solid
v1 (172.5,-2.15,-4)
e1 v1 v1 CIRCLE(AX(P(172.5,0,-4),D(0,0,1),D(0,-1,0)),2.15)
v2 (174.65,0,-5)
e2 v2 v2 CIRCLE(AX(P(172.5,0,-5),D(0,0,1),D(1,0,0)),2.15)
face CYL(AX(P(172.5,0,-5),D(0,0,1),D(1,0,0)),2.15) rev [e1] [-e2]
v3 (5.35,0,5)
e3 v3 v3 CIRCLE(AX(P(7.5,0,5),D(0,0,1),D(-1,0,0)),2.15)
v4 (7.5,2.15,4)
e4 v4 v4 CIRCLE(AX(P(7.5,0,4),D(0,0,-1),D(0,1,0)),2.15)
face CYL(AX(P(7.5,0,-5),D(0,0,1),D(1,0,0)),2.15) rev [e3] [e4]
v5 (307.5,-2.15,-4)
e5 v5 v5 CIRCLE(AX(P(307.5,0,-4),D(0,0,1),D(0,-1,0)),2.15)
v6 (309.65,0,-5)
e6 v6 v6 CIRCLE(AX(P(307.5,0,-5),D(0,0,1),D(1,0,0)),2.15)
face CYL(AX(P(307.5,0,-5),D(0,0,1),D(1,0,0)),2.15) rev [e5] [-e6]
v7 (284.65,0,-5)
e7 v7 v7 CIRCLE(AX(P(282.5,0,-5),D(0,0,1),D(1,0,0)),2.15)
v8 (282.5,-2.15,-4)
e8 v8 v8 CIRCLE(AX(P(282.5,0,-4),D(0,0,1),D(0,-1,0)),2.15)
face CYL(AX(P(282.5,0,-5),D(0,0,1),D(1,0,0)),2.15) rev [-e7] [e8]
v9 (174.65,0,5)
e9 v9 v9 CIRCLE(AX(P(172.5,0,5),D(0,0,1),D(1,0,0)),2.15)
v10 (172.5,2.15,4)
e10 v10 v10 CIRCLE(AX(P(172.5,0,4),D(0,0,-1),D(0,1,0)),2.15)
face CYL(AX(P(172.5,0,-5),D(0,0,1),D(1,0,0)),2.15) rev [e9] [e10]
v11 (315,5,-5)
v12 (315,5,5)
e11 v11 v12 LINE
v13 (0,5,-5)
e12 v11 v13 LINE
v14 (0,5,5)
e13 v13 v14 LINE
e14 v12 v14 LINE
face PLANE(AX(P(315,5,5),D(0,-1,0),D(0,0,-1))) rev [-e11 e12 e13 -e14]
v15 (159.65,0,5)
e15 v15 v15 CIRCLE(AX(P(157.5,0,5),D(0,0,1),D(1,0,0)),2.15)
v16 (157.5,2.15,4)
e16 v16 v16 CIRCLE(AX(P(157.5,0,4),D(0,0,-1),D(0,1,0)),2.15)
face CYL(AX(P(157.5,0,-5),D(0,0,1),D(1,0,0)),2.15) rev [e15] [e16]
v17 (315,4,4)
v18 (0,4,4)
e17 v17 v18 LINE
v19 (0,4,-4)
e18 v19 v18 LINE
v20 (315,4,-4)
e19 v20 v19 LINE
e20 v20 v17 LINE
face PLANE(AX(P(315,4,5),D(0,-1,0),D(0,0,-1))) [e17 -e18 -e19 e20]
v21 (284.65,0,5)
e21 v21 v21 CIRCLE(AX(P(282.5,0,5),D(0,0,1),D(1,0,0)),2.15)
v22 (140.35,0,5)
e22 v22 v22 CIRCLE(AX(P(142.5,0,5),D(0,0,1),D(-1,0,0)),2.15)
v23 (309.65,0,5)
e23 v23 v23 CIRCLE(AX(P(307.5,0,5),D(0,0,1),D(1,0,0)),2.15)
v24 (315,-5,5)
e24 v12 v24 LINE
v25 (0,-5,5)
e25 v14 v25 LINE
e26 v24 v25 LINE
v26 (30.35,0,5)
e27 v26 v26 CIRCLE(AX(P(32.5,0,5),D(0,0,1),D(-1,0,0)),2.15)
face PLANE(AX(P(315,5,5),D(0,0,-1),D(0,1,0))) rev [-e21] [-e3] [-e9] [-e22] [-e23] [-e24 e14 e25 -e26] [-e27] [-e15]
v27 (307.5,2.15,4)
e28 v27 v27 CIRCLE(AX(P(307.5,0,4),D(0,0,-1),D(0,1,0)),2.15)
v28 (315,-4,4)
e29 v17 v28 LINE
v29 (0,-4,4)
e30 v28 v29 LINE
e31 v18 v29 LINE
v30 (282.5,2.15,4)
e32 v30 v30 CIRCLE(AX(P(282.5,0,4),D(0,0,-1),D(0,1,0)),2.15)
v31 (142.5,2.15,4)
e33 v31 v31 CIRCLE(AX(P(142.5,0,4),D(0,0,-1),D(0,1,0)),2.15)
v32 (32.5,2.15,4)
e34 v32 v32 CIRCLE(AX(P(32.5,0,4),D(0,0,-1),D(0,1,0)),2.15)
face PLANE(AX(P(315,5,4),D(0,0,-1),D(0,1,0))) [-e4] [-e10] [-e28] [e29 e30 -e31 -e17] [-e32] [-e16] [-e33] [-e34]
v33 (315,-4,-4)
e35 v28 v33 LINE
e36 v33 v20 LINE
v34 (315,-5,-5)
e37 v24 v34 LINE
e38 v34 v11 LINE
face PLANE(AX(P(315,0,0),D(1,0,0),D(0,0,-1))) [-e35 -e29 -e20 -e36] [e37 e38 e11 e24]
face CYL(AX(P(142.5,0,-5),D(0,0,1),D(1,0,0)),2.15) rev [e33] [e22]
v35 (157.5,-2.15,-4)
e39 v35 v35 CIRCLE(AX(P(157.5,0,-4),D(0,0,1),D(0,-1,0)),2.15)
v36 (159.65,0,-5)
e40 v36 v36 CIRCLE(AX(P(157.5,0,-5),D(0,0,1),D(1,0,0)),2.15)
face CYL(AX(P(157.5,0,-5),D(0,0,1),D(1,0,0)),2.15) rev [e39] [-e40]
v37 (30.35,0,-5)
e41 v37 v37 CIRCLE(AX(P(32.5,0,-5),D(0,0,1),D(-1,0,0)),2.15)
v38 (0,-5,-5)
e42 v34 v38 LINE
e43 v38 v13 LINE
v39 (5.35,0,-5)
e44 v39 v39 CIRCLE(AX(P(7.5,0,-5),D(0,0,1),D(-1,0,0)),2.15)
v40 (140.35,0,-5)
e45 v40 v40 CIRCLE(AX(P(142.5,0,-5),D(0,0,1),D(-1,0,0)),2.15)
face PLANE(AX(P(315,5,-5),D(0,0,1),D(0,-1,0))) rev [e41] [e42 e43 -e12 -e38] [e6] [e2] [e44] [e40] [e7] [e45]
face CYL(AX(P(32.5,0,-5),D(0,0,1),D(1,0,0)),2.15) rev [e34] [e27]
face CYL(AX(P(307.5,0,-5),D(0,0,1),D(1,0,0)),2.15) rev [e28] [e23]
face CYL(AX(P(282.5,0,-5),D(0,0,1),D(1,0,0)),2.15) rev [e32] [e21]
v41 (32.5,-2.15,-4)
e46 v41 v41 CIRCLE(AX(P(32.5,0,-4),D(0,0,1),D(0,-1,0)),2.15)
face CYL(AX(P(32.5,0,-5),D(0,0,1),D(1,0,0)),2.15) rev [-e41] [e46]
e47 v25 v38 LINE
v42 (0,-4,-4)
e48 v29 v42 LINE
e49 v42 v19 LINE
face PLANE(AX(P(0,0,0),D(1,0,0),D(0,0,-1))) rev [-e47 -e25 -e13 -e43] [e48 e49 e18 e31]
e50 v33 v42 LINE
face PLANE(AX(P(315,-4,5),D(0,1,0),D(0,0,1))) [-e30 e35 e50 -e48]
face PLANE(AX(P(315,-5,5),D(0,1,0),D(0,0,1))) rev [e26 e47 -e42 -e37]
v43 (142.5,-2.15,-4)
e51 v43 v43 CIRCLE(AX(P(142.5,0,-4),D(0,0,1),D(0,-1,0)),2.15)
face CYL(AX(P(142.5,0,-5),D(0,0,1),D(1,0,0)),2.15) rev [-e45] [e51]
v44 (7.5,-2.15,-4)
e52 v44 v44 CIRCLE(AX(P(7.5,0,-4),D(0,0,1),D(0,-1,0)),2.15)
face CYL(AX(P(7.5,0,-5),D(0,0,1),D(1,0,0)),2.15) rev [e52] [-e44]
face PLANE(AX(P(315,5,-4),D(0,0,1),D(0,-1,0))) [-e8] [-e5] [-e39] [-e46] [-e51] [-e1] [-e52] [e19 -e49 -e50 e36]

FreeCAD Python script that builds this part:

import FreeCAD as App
import Part
import Sketcher
from FreeCAD import Vector

doc = App.newDocument("Part")
params = doc.addObject("Spreadsheet::Sheet", "Params")
for row, (alias, value) in enumerate([
    ("sketch1_width", "10 mm"),
    ("sketch1_width2", "8 mm"),
    ("pad1_length", "315 mm"),
    ("sketch2_diameter", "4.3 mm"),
], start=1):
    params.set(f"A{row}", alias)
    params.set(f"B{row}", "=" + value)
    params.setAlias(f"B{row}", alias)

body = doc.addObject("PartDesign::Body", "Body")

# Sketch on YZ plane
sketch1 = body.newObject("Sketcher::SketchObject", "Sketch")
sketch1.AttachmentSupport = (doc.getObject("YZ_Plane"), [""])
sketch1.MapMode = "FlatFace"
sketch1.addGeometry([
    Part.LineSegment(Vector(5, 5, 0), Vector(-5, 5, 0)),  # 0
    Part.LineSegment(Vector(-5, 5, 0), Vector(-5, -5, 0)),  # 1
    Part.LineSegment(Vector(-5, -5, 0), Vector(5, -5, 0)),  # 2
    Part.LineSegment(Vector(5, -5, 0), Vector(5, 5, 0)),  # 3
    Part.LineSegment(Vector(-4, -4, 0), Vector(-4, 4, 0)),  # 4
    Part.LineSegment(Vector(-4, 4, 0), Vector(4, 4, 0)),  # 5
    Part.LineSegment(Vector(4, 4, 0), Vector(4, -4, 0)),  # 6
    Part.LineSegment(Vector(4, -4, 0), Vector(-4, -4, 0)),  # 7
], False)
sketch1.addConstraint([
    Sketcher.Constraint("Coincident", 0, 2, 1, 1),
    Sketcher.Constraint("Coincident", 1, 2, 2, 1),
    Sketcher.Constraint("Coincident", 2, 2, 3, 1),
    Sketcher.Constraint("Coincident", 3, 2, 0, 1),
    Sketcher.Constraint("Coincident", 4, 2, 5, 1),
    Sketcher.Constraint("Coincident", 5, 2, 6, 1),
    Sketcher.Constraint("Coincident", 6, 2, 7, 1),
    Sketcher.Constraint("Coincident", 7, 2, 4, 1),
    Sketcher.Constraint("Horizontal", 0),
    Sketcher.Constraint("Vertical", 1),
    Sketcher.Constraint("Horizontal", 2),
    Sketcher.Constraint("Vertical", 3),
    Sketcher.Constraint("Vertical", 4),
    Sketcher.Constraint("Horizontal", 5),
    Sketcher.Constraint("Vertical", 6),
    Sketcher.Constraint("Horizontal", 7),
    Sketcher.Constraint("Symmetric", 0, 2, 2, 2, -1, 1),
    Sketcher.Constraint("Symmetric", 4, 2, 6, 2, -1, 1),
    Sketcher.Constraint("Equal", 2, 1),
    Sketcher.Constraint("Equal", 7, 4),
    Sketcher.Constraint("DistanceX", 0, 2, 0, 1, 10.0),
    Sketcher.Constraint("DistanceX", 5, 1, 5, 2, 8.0),
])
sketch1.setExpression("Constraints[20]", "Params.sketch1_width")
sketch1.setExpression("Constraints[21]", "Params.sketch1_width2")
pad1 = body.newObject("PartDesign::Pad", "Pad")
pad1.Profile = sketch1
pad1.setExpression("Length", "Params.pad1_length")

# Sketch on XY plane
sketch2 = body.newObject("Sketcher::SketchObject", "Sketch001")
sketch2.AttachmentSupport = (doc.getObject("XY_Plane"), [""])
sketch2.MapMode = "FlatFace"
sketch2.AttachmentOffset = App.Placement(Vector(0, 0, 5), App.Rotation())
sketch2.addGeometry([
    Part.Circle(Vector(307.5, 0, 0), Vector(0, 0, 1), 2.1),  # 0
    Part.Circle(Vector(282.5, 0, 0), Vector(0, 0, 1), 2.1),  # 1
    Part.Circle(Vector(7.5, 0, 0), Vector(0, 0, 1), 2.1),  # 2
    Part.Circle(Vector(32.5, 0, 0), Vector(0, 0, 1), 2.1),  # 3
    Part.Circle(Vector(172.5, 0, 0), Vector(0, 0, 1), 2.1),  # 4
    Part.Circle(Vector(157.5, 0, 0), Vector(0, 0, 1), 2.1),  # 5
    Part.Circle(Vector(142.5, 0, 0), Vector(0, 0, 1), 2.1),  # 6
], False)
sketch2.addConstraint([
    Sketcher.Constraint("Equal", 0, 1),
    Sketcher.Constraint("Equal", 1, 2),
    Sketcher.Constraint("Equal", 2, 3),
    Sketcher.Constraint("Equal", 3, 4),
    Sketcher.Constraint("Equal", 4, 5),
    Sketcher.Constraint("Equal", 5, 6),
    Sketcher.Constraint("PointOnObject", 0, 3, -1),
    Sketcher.Constraint("PointOnObject", 1, 3, -1),
    Sketcher.Constraint("PointOnObject", 2, 3, -1),
    Sketcher.Constraint("PointOnObject", 3, 3, -1),
    Sketcher.Constraint("PointOnObject", 4, 3, -1),
    Sketcher.Constraint("PointOnObject", 5, 3, -1),
    Sketcher.Constraint("PointOnObject", 6, 3, -1),
    Sketcher.Constraint("Diameter", 0, 4.3),
    Sketcher.Constraint("DistanceX", 1, 3, 0, 3, 25.0),
    Sketcher.Constraint("DistanceX", 2, 3, 1, 3, 275.0),
    Sketcher.Constraint("DistanceX", 2, 3, 3, 3, 25.0),
    Sketcher.Constraint("DistanceX", 4, 3, 1, 3, 110.0),
    Sketcher.Constraint("DistanceX", 5, 3, 4, 3, 15.0),
    Sketcher.Constraint("DistanceX", 6, 3, 5, 3, 15.0),
    Sketcher.Constraint("DistanceX", -1, 1, 0, 3, 307.5),
])
sketch2.setExpression("Constraints[13]", "Params.sketch2_diameter")
pocket1 = body.newObject("PartDesign::Pocket", "Pocket")
pocket1.Profile = sketch2
pocket1.Type = "ThroughAll"

doc.recompute()
